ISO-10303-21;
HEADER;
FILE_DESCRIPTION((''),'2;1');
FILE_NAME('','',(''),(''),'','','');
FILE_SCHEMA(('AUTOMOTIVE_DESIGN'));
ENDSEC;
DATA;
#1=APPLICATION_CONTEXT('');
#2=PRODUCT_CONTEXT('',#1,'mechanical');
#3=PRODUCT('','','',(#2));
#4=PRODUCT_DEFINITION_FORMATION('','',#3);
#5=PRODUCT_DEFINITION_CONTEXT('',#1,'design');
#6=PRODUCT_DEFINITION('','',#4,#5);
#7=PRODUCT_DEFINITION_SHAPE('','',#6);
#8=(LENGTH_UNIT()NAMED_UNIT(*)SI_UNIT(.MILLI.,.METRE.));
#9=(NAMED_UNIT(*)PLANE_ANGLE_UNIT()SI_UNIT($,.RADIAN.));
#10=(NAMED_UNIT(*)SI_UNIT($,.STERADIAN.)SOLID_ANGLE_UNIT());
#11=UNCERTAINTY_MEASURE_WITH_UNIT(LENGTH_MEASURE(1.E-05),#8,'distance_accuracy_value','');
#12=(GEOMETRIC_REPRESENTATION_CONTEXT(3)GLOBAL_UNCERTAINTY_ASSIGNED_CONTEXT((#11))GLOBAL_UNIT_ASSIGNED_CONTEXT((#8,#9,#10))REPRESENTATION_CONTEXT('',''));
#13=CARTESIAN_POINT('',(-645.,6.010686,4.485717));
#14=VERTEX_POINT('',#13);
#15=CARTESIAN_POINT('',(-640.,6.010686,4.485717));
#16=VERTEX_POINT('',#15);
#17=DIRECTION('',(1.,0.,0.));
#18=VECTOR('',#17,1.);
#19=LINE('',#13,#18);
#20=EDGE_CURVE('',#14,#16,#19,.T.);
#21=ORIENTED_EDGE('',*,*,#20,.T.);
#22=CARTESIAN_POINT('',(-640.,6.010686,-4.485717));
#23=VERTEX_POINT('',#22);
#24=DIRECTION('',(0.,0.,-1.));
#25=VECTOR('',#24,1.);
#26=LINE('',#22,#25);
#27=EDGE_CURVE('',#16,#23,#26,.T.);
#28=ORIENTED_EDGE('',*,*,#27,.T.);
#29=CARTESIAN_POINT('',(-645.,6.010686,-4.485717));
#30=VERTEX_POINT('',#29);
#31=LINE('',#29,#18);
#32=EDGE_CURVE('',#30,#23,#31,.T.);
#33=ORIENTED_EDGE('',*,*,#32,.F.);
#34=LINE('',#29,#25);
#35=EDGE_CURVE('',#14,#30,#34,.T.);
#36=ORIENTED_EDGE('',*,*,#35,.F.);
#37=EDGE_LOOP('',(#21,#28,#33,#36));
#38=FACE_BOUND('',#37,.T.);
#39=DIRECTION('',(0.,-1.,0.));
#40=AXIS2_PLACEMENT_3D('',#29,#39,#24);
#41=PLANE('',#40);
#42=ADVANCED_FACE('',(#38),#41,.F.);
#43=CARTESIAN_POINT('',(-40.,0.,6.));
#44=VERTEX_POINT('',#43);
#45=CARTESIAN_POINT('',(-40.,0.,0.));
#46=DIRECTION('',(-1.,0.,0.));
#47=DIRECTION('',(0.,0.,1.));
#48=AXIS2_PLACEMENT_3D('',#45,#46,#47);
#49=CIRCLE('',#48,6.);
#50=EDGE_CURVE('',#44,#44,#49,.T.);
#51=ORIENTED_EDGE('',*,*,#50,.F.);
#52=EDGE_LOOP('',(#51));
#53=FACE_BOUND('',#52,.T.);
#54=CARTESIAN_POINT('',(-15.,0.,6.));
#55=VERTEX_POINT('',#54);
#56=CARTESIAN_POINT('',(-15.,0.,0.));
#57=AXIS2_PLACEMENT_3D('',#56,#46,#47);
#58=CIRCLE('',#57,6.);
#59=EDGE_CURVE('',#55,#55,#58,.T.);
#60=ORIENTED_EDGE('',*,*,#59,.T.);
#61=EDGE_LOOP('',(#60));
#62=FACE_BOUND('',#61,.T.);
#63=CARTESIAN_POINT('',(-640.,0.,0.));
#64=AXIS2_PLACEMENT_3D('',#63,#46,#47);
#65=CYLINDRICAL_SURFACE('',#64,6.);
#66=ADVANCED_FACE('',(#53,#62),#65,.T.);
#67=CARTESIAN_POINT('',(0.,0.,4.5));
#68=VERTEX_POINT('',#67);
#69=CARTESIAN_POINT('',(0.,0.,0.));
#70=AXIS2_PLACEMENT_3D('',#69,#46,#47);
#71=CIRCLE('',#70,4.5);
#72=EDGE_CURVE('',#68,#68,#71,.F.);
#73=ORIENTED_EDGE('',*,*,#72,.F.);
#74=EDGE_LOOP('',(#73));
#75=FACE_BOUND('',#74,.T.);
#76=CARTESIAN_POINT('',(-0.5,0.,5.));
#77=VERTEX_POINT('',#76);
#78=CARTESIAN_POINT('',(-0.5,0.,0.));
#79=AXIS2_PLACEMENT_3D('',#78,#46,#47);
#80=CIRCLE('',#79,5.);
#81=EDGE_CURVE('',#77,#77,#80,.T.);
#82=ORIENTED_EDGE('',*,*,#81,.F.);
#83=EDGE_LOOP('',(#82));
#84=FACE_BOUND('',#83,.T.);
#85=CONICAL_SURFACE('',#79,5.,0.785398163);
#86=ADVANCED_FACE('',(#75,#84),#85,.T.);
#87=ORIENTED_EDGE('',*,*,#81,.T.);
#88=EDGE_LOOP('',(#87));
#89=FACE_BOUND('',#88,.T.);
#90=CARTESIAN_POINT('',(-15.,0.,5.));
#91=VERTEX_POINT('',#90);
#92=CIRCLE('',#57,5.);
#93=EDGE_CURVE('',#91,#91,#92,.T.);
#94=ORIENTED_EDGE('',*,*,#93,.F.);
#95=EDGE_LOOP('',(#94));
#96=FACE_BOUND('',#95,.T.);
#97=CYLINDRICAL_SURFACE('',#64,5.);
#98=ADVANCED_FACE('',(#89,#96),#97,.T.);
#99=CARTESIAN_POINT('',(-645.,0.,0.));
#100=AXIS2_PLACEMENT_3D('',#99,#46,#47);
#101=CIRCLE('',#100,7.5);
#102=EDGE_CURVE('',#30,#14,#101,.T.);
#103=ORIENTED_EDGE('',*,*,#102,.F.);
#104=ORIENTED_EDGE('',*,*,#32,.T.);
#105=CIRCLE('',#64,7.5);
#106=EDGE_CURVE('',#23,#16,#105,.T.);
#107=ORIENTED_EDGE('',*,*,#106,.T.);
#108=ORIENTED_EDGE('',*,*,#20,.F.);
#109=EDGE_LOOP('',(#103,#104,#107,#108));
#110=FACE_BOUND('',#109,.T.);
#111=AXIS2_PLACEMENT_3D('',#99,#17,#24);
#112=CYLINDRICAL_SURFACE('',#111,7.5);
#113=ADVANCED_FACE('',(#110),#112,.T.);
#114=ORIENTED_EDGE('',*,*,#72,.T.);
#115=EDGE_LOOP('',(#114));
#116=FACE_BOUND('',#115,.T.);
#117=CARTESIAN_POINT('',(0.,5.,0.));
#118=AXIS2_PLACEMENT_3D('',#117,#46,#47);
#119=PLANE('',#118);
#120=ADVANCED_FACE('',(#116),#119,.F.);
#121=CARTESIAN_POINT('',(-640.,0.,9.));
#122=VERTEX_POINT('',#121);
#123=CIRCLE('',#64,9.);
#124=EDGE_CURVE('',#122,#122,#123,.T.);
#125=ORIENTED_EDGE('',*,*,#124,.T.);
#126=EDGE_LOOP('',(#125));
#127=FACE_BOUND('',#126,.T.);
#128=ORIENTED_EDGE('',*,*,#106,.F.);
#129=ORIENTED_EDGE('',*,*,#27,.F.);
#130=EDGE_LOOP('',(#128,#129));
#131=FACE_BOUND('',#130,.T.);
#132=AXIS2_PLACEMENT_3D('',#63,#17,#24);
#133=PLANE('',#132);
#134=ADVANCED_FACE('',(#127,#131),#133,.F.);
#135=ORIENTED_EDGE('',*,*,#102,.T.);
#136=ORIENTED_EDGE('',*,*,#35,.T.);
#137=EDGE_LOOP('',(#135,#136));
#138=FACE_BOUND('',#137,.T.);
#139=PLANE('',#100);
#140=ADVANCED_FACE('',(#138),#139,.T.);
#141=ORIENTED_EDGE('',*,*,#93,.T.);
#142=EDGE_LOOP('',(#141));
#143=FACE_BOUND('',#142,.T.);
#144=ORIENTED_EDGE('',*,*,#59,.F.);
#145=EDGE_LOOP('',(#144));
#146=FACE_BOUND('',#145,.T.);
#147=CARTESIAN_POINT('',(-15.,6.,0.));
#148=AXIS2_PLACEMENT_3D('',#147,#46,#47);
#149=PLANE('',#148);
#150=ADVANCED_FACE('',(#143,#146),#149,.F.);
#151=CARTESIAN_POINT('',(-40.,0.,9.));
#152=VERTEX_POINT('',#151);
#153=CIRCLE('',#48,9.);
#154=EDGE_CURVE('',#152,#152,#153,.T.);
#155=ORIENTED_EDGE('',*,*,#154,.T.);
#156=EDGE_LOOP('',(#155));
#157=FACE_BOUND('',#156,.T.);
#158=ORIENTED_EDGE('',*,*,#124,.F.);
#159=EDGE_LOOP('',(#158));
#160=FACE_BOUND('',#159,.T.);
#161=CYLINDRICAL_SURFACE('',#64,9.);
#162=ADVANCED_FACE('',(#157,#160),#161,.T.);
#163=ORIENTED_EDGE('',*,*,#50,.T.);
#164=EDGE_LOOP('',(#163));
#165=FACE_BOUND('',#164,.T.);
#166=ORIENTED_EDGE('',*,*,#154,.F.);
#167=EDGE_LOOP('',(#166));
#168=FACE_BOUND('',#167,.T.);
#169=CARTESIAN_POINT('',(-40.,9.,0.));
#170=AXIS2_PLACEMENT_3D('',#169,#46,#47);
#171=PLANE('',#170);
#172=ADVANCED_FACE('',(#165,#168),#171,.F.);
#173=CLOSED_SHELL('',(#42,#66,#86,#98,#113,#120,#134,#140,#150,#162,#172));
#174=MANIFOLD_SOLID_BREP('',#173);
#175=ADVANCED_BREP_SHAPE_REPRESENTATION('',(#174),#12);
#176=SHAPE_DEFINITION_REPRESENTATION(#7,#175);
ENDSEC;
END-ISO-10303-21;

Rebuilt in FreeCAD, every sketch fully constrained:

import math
import FreeCAD as App
import Part
import Sketcher

V = App.Vector


def edges_at(feature, points):
    """Names of the edges that pass closest to the given points."""
    edges = feature.Shape.Edges
    near = lambda p: min(range(len(edges)), key=lambda i: edges[i].distToShape(Part.Vertex(*p))[0])
    return sorted({f"Edge{near(p) + 1}" for p in points})

doc = App.newDocument("Part")
body = doc.addObject("PartDesign::Body", "Body")

# Sketch on XY plane
sketch1 = doc.addObject("Sketcher::SketchObject", "Sketch")
body.addObject(sketch1)
sketch1.AttachmentSupport = (doc.XY_Plane, [""])
sketch1.MapMode = "FlatFace"
sketch1.addGeometry([
    Part.LineSegment(V(-640, 0, 0), V(0, 0, 0)),  # 0
    Part.LineSegment(V(0, 0, 0), V(0, 5, 0)),  # 1
    Part.LineSegment(V(0, 5, 0), V(-15, 5, 0)),  # 2
    Part.LineSegment(V(-15, 5, 0), V(-15, 6, 0)),  # 3
    Part.LineSegment(V(-15, 6, 0), V(-40, 6, 0)),  # 4
    Part.LineSegment(V(-40, 6, 0), V(-40, 9, 0)),  # 5
    Part.LineSegment(V(-40, 9, 0), V(-640, 9, 0)),  # 6
    Part.LineSegment(V(-640, 9, 0), V(-640, 0, 0)),  # 7
], False)
sketch1.addConstraint([
    Sketcher.Constraint("Coincident", 0, 2, 1, 1),
    Sketcher.Constraint("Coincident", 1, 2, 2, 1),
    Sketcher.Constraint("Coincident", 2, 2, 3, 1),
    Sketcher.Constraint("Coincident", 3, 2, 4, 1),
    Sketcher.Constraint("Coincident", 4, 2, 5, 1),
    Sketcher.Constraint("Coincident", 5, 2, 6, 1),
    Sketcher.Constraint("Coincident", 6, 2, 7, 1),
    Sketcher.Constraint("Coincident", 7, 2, 0, 1),
    Sketcher.Constraint("Horizontal", 0),
    Sketcher.Constraint("Vertical", 1),
    Sketcher.Constraint("Horizontal", 2),
    Sketcher.Constraint("Vertical", 3),
    Sketcher.Constraint("Horizontal", 4),
    Sketcher.Constraint("Vertical", 5),
    Sketcher.Constraint("Horizontal", 6),
    Sketcher.Constraint("Vertical", 7),
    Sketcher.Constraint("Coincident", 0, 2, -1, 1),
    Sketcher.Constraint("DistanceX", 0, 1, 0, 2, 640.0),
    Sketcher.Constraint("DistanceX", 2, 2, 2, 1, 15.0),
    Sketcher.Constraint("DistanceX", 4, 2, 4, 1, 25.0),
    Sketcher.Constraint("DistanceY", 1, 1, 1, 2, 5.0),
    Sketcher.Constraint("DistanceY", 3, 1, 3, 2, 1.0),
    Sketcher.Constraint("DistanceY", 5, 1, 5, 2, 3.0),
])
revolution = doc.addObject("PartDesign::Revolution", "Revolution")
body.addObject(revolution)
revolution.Profile = sketch1
revolution.ReferenceAxis = (sketch1, ["H_Axis"])
revolution.Angle = 360
doc.recompute()

chamfer = doc.addObject("PartDesign::Chamfer", "Chamfer")
body.addObject(chamfer)
chamfer.Base = (revolution, edges_at(revolution, [(0, 0, -5)]))
chamfer.Size = 0.5

# Sketch on YZ plane
sketch2 = doc.addObject("Sketcher::SketchObject", "Sketch001")
body.addObject(sketch2)
sketch2.AttachmentSupport = (doc.YZ_Plane, [""])
sketch2.MapMode = "FlatFace"
sketch2.AttachmentOffset = App.Placement(V(0, 0, -640), App.Rotation())
sketch2.addGeometry([
    Part.LineSegment(V(6, 4, 0), V(6, -4, 0)),
    Part.ArcOfCircle(Part.Circle(V(0, 0, 0), V(0, 0, 1), 8), math.radians(37), math.radians(323)),
], False)
sketch2.addConstraint([
    Sketcher.Constraint("Coincident", 0, 1, 1, 1),
    Sketcher.Constraint("Coincident", 1, 2, 0, 2),
    Sketcher.Constraint("Vertical", 0),
    Sketcher.Constraint("Coincident", 1, 3, -1, 1),
    Sketcher.Constraint("Radius", 1, 7.5),
    Sketcher.Constraint("DistanceY", 0, 2, 0, 1, 8.971433),
])
pad1 = doc.addObject("PartDesign::Pad", "Pad")
body.addObject(pad1)
pad1.Profile = sketch2
pad1.Length = 5
pad1.Reversed = True

doc.recompute()
